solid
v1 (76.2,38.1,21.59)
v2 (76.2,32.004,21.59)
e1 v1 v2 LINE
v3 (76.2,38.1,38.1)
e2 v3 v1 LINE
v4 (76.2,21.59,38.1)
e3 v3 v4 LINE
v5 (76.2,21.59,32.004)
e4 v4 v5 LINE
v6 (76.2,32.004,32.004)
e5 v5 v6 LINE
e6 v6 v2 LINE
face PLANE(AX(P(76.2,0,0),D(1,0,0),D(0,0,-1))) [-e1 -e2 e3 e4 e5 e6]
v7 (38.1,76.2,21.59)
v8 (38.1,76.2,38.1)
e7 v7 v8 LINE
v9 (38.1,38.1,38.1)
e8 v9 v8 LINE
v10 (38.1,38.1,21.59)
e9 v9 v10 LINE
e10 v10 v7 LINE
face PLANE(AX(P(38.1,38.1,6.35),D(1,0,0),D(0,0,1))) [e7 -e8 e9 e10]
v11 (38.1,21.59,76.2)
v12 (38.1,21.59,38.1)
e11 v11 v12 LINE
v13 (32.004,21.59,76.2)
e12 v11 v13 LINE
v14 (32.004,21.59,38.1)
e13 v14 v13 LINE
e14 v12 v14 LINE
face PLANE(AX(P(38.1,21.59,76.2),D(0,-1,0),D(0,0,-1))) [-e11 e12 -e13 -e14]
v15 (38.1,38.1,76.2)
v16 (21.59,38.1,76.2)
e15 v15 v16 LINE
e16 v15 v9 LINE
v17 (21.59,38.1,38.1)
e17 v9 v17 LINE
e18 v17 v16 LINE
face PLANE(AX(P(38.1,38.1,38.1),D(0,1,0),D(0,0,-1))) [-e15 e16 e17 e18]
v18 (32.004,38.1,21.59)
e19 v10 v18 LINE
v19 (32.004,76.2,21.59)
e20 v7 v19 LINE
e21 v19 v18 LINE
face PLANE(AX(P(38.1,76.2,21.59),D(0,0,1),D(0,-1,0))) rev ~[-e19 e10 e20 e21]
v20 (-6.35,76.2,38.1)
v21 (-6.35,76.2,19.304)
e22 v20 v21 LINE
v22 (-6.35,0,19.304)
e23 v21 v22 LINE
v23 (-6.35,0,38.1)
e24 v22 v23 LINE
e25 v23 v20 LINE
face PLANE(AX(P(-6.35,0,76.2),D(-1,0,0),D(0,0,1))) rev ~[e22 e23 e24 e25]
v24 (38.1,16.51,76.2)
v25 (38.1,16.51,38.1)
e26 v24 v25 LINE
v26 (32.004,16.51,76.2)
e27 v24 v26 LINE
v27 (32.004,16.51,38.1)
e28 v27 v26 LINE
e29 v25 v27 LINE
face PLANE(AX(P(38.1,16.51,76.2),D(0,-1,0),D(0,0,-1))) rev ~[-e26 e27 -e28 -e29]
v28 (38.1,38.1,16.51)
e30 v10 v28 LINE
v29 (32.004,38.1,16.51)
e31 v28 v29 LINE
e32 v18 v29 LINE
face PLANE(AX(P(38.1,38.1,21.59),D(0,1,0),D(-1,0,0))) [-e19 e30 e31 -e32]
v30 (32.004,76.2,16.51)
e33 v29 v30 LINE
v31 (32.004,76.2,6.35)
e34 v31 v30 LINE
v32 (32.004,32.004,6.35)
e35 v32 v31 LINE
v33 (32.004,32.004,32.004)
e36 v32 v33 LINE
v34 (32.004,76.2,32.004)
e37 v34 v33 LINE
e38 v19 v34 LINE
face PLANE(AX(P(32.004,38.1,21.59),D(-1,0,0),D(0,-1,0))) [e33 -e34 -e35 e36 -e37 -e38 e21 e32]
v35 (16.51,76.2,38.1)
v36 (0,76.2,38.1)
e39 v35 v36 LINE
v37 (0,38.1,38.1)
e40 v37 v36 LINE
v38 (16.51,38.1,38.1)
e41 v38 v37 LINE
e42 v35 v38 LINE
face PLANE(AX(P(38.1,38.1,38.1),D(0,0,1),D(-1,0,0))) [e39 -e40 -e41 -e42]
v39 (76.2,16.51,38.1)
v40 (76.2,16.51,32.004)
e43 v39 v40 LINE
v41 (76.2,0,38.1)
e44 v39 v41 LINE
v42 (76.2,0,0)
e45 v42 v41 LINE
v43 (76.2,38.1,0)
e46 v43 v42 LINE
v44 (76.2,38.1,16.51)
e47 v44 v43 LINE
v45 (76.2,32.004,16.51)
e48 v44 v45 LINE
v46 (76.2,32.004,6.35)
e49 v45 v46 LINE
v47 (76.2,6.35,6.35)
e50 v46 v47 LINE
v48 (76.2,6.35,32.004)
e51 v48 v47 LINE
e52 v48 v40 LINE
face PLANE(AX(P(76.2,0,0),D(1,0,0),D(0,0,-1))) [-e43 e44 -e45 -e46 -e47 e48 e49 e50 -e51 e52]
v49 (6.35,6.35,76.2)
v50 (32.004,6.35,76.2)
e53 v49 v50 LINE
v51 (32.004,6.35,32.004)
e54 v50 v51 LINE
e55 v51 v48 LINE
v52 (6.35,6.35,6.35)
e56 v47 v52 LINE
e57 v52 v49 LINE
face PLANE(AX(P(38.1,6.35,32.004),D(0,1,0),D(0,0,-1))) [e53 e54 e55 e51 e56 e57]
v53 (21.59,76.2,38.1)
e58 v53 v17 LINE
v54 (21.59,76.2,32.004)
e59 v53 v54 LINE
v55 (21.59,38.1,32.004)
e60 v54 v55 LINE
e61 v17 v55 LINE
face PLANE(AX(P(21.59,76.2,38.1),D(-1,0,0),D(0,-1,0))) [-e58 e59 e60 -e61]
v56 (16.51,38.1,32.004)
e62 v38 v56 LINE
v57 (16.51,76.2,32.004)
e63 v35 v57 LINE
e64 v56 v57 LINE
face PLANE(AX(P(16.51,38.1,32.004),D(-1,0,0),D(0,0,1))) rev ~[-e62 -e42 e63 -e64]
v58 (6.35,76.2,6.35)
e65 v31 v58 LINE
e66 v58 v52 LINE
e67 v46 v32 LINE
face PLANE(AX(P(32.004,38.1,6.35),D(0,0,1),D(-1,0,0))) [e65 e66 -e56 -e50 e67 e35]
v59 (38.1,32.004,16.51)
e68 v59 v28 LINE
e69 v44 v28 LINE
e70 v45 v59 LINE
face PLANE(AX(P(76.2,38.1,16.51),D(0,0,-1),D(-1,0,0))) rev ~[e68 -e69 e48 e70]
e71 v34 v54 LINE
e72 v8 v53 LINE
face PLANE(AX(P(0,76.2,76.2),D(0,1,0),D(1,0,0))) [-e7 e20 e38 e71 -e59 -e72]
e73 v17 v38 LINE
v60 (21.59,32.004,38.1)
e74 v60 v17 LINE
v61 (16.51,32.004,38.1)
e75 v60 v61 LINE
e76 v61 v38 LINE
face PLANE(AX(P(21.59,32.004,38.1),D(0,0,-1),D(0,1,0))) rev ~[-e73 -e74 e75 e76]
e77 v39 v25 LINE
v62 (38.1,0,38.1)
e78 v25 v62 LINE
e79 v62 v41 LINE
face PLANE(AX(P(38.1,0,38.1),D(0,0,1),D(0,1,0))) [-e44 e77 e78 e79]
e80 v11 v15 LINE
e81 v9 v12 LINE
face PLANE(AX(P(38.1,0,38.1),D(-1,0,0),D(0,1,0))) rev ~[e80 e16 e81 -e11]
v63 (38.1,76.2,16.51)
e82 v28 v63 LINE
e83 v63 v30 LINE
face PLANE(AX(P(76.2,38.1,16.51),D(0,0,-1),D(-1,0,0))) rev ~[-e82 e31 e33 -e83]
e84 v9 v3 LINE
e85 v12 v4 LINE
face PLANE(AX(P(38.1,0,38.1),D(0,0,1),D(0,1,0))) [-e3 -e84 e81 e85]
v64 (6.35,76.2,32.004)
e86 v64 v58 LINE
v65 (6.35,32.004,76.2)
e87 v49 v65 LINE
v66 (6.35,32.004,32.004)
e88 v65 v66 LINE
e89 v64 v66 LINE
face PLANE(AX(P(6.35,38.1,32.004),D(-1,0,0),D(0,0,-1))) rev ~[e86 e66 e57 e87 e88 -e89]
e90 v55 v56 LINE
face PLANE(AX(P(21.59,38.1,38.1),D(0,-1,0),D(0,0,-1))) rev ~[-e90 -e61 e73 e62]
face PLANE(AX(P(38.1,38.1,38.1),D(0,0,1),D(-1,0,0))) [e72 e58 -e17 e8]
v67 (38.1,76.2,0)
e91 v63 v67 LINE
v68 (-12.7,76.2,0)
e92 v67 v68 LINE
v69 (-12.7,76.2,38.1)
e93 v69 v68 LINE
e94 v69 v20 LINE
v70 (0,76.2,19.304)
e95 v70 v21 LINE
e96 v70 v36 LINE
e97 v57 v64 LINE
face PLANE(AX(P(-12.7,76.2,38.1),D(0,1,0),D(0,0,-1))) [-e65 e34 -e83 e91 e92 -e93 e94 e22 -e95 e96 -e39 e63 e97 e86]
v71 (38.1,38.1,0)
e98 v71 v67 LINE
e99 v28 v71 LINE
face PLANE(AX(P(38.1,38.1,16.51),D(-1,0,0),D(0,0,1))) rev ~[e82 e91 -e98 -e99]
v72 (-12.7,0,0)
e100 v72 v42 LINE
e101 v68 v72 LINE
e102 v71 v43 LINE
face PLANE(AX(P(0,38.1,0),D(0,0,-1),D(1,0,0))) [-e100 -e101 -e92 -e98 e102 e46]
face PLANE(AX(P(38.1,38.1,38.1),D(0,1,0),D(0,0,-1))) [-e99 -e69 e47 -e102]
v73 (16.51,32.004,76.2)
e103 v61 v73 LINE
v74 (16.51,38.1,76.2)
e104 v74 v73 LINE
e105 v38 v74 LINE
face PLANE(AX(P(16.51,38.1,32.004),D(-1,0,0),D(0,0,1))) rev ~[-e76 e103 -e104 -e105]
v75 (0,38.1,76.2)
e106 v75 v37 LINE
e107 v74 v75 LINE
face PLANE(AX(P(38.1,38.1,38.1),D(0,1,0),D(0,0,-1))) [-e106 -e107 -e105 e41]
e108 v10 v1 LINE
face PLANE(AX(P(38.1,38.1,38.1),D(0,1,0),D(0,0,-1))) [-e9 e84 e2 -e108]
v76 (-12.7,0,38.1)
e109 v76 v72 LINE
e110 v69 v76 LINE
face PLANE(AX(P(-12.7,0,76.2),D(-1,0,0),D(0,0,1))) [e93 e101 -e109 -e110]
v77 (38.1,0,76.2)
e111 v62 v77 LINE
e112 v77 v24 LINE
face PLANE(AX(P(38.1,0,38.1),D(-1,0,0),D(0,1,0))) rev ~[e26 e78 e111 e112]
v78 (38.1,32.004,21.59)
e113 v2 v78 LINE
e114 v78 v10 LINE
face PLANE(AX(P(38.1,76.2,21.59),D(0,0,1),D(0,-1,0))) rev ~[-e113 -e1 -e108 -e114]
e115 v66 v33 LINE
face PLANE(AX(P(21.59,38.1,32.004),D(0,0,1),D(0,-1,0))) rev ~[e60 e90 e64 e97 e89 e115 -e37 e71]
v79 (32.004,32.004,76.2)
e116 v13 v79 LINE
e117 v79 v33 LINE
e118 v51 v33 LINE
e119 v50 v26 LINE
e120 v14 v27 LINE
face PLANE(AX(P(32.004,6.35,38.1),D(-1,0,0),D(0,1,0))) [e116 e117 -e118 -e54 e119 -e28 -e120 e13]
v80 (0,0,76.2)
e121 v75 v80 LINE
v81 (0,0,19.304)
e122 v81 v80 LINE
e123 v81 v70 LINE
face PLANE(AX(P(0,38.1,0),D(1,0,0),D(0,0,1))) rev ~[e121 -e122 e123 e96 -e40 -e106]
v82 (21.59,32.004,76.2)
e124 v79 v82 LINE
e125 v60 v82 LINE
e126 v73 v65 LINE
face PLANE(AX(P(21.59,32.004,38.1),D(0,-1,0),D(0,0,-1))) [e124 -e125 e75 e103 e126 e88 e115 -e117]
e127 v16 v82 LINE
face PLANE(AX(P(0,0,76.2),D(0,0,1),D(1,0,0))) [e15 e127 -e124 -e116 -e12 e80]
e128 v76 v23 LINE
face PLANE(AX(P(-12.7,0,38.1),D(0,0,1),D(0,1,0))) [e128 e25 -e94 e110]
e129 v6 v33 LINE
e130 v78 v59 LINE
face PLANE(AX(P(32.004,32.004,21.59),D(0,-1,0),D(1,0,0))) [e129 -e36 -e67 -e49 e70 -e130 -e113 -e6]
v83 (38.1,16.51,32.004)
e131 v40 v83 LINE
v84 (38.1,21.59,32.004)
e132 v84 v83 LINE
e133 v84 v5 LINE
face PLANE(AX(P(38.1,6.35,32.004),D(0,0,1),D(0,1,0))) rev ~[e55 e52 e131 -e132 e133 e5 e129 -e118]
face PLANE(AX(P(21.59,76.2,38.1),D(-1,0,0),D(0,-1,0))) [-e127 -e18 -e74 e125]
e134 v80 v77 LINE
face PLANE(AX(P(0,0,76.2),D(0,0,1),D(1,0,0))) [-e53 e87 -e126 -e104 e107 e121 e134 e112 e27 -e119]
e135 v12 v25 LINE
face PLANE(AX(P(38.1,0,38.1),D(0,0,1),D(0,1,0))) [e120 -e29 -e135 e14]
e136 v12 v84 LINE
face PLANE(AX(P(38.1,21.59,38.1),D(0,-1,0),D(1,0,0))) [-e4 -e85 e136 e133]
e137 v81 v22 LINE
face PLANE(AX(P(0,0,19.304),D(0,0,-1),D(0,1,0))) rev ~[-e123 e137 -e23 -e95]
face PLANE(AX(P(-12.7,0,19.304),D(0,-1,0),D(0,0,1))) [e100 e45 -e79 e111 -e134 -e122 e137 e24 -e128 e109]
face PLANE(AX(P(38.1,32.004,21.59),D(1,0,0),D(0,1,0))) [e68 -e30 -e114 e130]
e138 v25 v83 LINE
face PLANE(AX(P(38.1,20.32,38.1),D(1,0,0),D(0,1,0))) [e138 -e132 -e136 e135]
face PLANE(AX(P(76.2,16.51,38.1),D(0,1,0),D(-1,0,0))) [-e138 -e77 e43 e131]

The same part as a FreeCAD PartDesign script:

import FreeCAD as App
import Part
import Sketcher
Q = App.Units.Quantity


def add_polygon(sketch, points):
    """Adds a closed chain of lines whose ends are joined by coincident constraints."""
    first, n = sketch.GeometryCount, len(points)
    for a, b in zip(points, points[1:] + points[:1]):
        sketch.addGeometry(Part.LineSegment(App.Vector(*a, 0), App.Vector(*b, 0)), False)
    for i in range(n):
        sketch.addConstraint(Sketcher.Constraint("Coincident", first + i, 2, first + (i + 1) % n, 1))

doc = App.newDocument("Part")
body = doc.addObject("PartDesign::Body", "Body")

sketch1 = doc.addObject("Sketcher::SketchObject", "Sketch")
body.addObject(sketch1)
sketch1.AttachmentSupport = (doc.XY_Plane, [""])
sketch1.MapMode = "FlatFace"
add_polygon(sketch1, [(0, 38), (0, 0), (38, 0), (38, 38)])
sketch1.addConstraint(Sketcher.Constraint("Vertical", 0))
sketch1.addConstraint(Sketcher.Constraint("Horizontal", 1))
sketch1.addConstraint(Sketcher.Constraint("Vertical", 2))
sketch1.addConstraint(Sketcher.Constraint("Horizontal", 3))
sketch1.addConstraint(Sketcher.Constraint("Coincident", 0, 2, -1, 1))
sketch1.addConstraint(Sketcher.Constraint("Equal", 3, 0))
sketch1.addConstraint(Sketcher.Constraint("DistanceX", 1, 1, 1, 2, Q("1.5 in")))
pad1 = doc.addObject("PartDesign::Pad", "Pad")
body.addObject(pad1)
pad1.Profile = sketch1
pad1.Length = Q("1.5 in")

sketch2 = doc.addObject("Sketcher::SketchObject", "Sketch001")
body.addObject(sketch2)
sketch2.AttachmentSupport = (doc.XY_Plane, [""])
sketch2.MapMode = "FlatFace"
sketch2.AttachmentOffset = App.Placement(App.Vector(0, 0, 1.5 * 25.4), App.Rotation())
add_polygon(sketch2, [(6, 32), (6, 6), (32, 6), (32, 32)])
sketch2.addConstraint(Sketcher.Constraint("Vertical", 0))
sketch2.addConstraint(Sketcher.Constraint("Horizontal", 1))
sketch2.addConstraint(Sketcher.Constraint("Vertical", 2))
sketch2.addConstraint(Sketcher.Constraint("Horizontal", 3))
sketch2.addConstraint(Sketcher.Constraint("Equal", 3, 0))
sketch2.addConstraint(Sketcher.Constraint("DistanceX", 1, 1, 1, 2, Q("1.01 in")))
sketch2.addConstraint(Sketcher.Constraint("DistanceX", -1, 1, 0, 2, Q("0.25 in")))
sketch2.addConstraint(Sketcher.Constraint("DistanceY", -1, 1, 0, 2, Q("0.25 in")))
pocket1 = doc.addObject("PartDesign::Pocket", "Pocket")
body.addObject(pocket1)
pocket1.Profile = sketch2
pocket1.Length = Q("1.25 in")

sketch3 = doc.addObject("Sketcher::SketchObject", "Sketch002")
body.addObject(sketch3)
sketch3.AttachmentSupport = (doc.XY_Plane, [""])
sketch3.MapMode = "FlatFace"
sketch3.AttachmentOffset = App.Placement(App.Vector(0, 0, 1.5 * 25.4), App.Rotation())
add_polygon(sketch3, [(0, 38), (0, 0), (38, 0), (38, 38)])
add_polygon(sketch3, [(32, 6), (6, 6), (6, 32), (32, 32)])
sketch3.addConstraint(Sketcher.Constraint("Vertical", 0))
sketch3.addConstraint(Sketcher.Constraint("Horizontal", 1))
sketch3.addConstraint(Sketcher.Constraint("Vertical", 2))
sketch3.addConstraint(Sketcher.Constraint("Horizontal", 3))
sketch3.addConstraint(Sketcher.Constraint("Horizontal", 4))
sketch3.addConstraint(Sketcher.Constraint("Vertical", 5))
sketch3.addConstraint(Sketcher.Constraint("Horizontal", 6))
sketch3.addConstraint(Sketcher.Constraint("Vertical", 7))
sketch3.addConstraint(Sketcher.Constraint("Coincident", 0, 2, -1, 1))
sketch3.addConstraint(Sketcher.Constraint("Equal", 3, 0))
sketch3.addConstraint(Sketcher.Constraint("Equal", 6, 5))
sketch3.addConstraint(Sketcher.Constraint("DistanceX", 1, 1, 1, 2, Q("1.5 in")))
sketch3.addConstraint(Sketcher.Constraint("DistanceX", 4, 2, 4, 1, Q("1.01 in")))
sketch3.addConstraint(Sketcher.Constraint("DistanceX", -1, 1, 4, 2, Q("0.25 in")))
sketch3.addConstraint(Sketcher.Constraint("DistanceY", -1, 1, 4, 2, Q("0.25 in")))
pad2 = doc.addObject("PartDesign::Pad", "Pad001")
body.addObject(pad2)
pad2.Profile = sketch3
pad2.Length = Q("1.5 in")

sketch4 = doc.addObject("Sketcher::SketchObject", "Sketch003")
body.addObject(sketch4)
sketch4.AttachmentSupport = (doc.YZ_Plane, [""])
sketch4.MapMode = "FlatFace"
sketch4.AttachmentOffset = App.Placement(App.Vector(0, 0, 1.5 * 25.4), App.Rotation())
add_polygon(sketch4, [(0, 38), (0, 0), (38, 0), (38, 38), (6, 38)])
add_polygon(sketch4, [(6, 6), (6, 32), (32, 32), (32, 6)])
sketch4.addConstraint(Sketcher.Constraint("Vertical", 0))
sketch4.addConstraint(Sketcher.Constraint("Horizontal", 1))
sketch4.addConstraint(Sketcher.Constraint("Vertical", 2))
sketch4.addConstraint(Sketcher.Constraint("Horizontal", 3))
sketch4.addConstraint(Sketcher.Constraint("Horizontal", 4))
sketch4.addConstraint(Sketcher.Constraint("Vertical", 5))
sketch4.addConstraint(Sketcher.Constraint("Horizontal", 6))
sketch4.addConstraint(Sketcher.Constraint("Vertical", 7))
sketch4.addConstraint(Sketcher.Constraint("Horizontal", 8))
sketch4.addConstraint(Sketcher.Constraint("Coincident", 0, 2, -1, 1))
sketch4.addConstraint(Sketcher.Constraint("Vertical", 3, 2, 5, 2))
sketch4.addConstraint(Sketcher.Constraint("Equal", 1, 0))
sketch4.addConstraint(Sketcher.Constraint("Equal", 8, 5))
sketch4.addConstraint(Sketcher.Constraint("DistanceX", 1, 1, 1, 2, Q("1.5 in")))
sketch4.addConstraint(Sketcher.Constraint("DistanceX", 6, 1, 6, 2, Q("1.01 in")))
sketch4.addConstraint(Sketcher.Constraint("DistanceX", 3, 2, 3, 1, Q("1.25 in")))
sketch4.addConstraint(Sketcher.Constraint("DistanceY", -1, 1, 5, 2, Q("1.26 in")))
pad3 = doc.addObject("PartDesign::Pad", "Pad002")
body.addObject(pad3)
pad3.Profile = sketch4
pad3.Length = Q("1.5 in")

sketch5 = doc.addObject("Sketcher::SketchObject", "Sketch004")
body.addObject(sketch5)
sketch5.AttachmentSupport = (doc.YZ_Plane, [""])
sketch5.MapMode = "FlatFace"
sketch5.AttachmentOffset = App.Placement(App.Vector(0, 0, 1.5 * 25.4), App.Rotation())
add_polygon(sketch5, [(32, 32), (6, 32), (6, 6), (32, 6)])
sketch5.addConstraint(Sketcher.Constraint("Horizontal", 0))
sketch5.addConstraint(Sketcher.Constraint("Vertical", 1))
sketch5.addConstraint(Sketcher.Constraint("Horizontal", 2))
sketch5.addConstraint(Sketcher.Constraint("Vertical", 3))
sketch5.addConstraint(Sketcher.Constraint("Equal", 2, 1))
sketch5.addConstraint(Sketcher.Constraint("DistanceX", 0, 2, 0, 1, Q("1.01 in")))
sketch5.addConstraint(Sketcher.Constraint("DistanceX", -1, 1, 0, 2, Q("0.25 in")))
sketch5.addConstraint(Sketcher.Constraint("DistanceY", -1, 1, 0, 2, Q("1.26 in")))
pocket2 = doc.addObject("PartDesign::Pocket", "Pocket001")
body.addObject(pocket2)
pocket2.Profile = sketch5
pocket2.Length = Q("1.25 in")

sketch6 = doc.addObject("Sketcher::SketchObject", "Sketch005")
body.addObject(sketch6)
sketch6.AttachmentSupport = (doc.XZ_Plane, [""])
sketch6.MapMode = "FlatFace"
sketch6.AttachmentOffset = App.Placement(App.Vector(0, 0, -1.5 * 25.4), App.Rotation())
add_polygon(sketch6, [(38, 38), (38, 6), (38, 0), (0, 0), (0, 38)])
add_polygon(sketch6, [(6, 6), (32, 6), (32, 32), (6, 32)])
sketch6.addConstraint(Sketcher.Constraint("Vertical", 0))
sketch6.addConstraint(Sketcher.Constraint("Vertical", 1))
sketch6.addConstraint(Sketcher.Constraint("Horizontal", 2))
sketch6.addConstraint(Sketcher.Constraint("Vertical", 3))
sketch6.addConstraint(Sketcher.Constraint("Horizontal", 4))
sketch6.addConstraint(Sketcher.Constraint("Horizontal", 5))
sketch6.addConstraint(Sketcher.Constraint("Vertical", 6))
sketch6.addConstraint(Sketcher.Constraint("Horizontal", 7))
sketch6.addConstraint(Sketcher.Constraint("Vertical", 8))
sketch6.addConstraint(Sketcher.Constraint("Coincident", 2, 2, -1, 1))
sketch6.addConstraint(Sketcher.Constraint("Horizontal", 0, 2, 5, 2))
sketch6.addConstraint(Sketcher.Constraint("Equal", 4, 3))
sketch6.addConstraint(Sketcher.Constraint("Equal", 7, 6))
sketch6.addConstraint(Sketcher.Constraint("DistanceX", 5, 1, 5, 2, Q("1.01 in")))
sketch6.addConstraint(Sketcher.Constraint("DistanceX", 2, 2, 2, 1, Q("1.5 in")))
sketch6.addConstraint(Sketcher.Constraint("DistanceY", 0, 2, 0, 1, Q("1.25 in")))
sketch6.addConstraint(Sketcher.Constraint("DistanceX", -1, 1, 5, 2, Q("1.26 in")))
pad4 = doc.addObject("PartDesign::Pad", "Pad003")
body.addObject(pad4)
pad4.Profile = sketch6
pad4.Length = Q("1.5 in")
pad4.Reversed = True

sketch7 = doc.addObject("Sketcher::SketchObject", "Sketch006")
body.addObject(sketch7)
sketch7.AttachmentSupport = (doc.XZ_Plane, [""])
sketch7.MapMode = "FlatFace"
sketch7.AttachmentOffset = App.Placement(App.Vector(0, 0, -1.5 * 25.4), App.Rotation())
add_polygon(sketch7, [(6, 6), (6, 32), (32, 32), (32, 6)])
sketch7.addConstraint(Sketcher.Constraint("Vertical", 0))
sketch7.addConstraint(Sketcher.Constraint("Horizontal", 1))
sketch7.addConstraint(Sketcher.Constraint("Vertical", 2))
sketch7.addConstraint(Sketcher.Constraint("Horizontal", 3))
sketch7.addConstraint(Sketcher.Constraint("Equal", 3, 0))
sketch7.addConstraint(Sketcher.Constraint("DistanceX", 1, 1, 1, 2, Q("1.01 in")))
sketch7.addConstraint(Sketcher.Constraint("DistanceX", -1, 1, 0, 2, Q("0.25 in")))
sketch7.addConstraint(Sketcher.Constraint("DistanceY", -1, 1, 0, 2, Q("1.26 in")))
pocket3 = doc.addObject("PartDesign::Pocket", "Pocket002")
body.addObject(pocket3)
pocket3.Profile = sketch7
pocket3.Length = Q("0.25 in")
pocket3.Reversed = True

sketch8 = doc.addObject("Sketcher::SketchObject", "Sketch007")
body.addObject(sketch8)
sketch8.AttachmentSupport = (doc.XZ_Plane, [""])
sketch8.MapMode = "FlatFace"
sketch8.AttachmentOffset = App.Placement(App.Vector(0, 0, -3 * 25.4), App.Rotation())
add_polygon(sketch8, [(32, 20.3), (38.1, 20.3), (38.1, 17.8), (32, 17.8)])
sketch8.addConstraint(Sketcher.Constraint("Horizontal", 0))
sketch8.addConstraint(Sketcher.Constraint("Vertical", 1))
sketch8.addConstraint(Sketcher.Constraint("Horizontal", 2))
sketch8.addConstraint(Sketcher.Constraint("Vertical", 3))
sketch8.addConstraint(Sketcher.Constraint("DistanceY", 1, 2, 1, 1, Q("0.1 in")))
sketch8.addConstraint(Sketcher.Constraint("DistanceX", 0, 1, 0, 2, Q("0.24 in")))
sketch8.addConstraint(Sketcher.Constraint("DistanceX", -1, 1, 0, 2, Q("1.5 in")))
sketch8.addConstraint(Sketcher.Constraint("DistanceY", -1, 1, 0, 2, Q("0.8 in")))
pocket4 = doc.addObject("PartDesign::Pocket", "Pocket003")
body.addObject(pocket4)
pocket4.Profile = sketch8
pocket4.Length = Q("1.5 in")
pocket4.Reversed = True

sketch9 = doc.addObject("Sketcher::SketchObject", "Sketch008")
body.addObject(sketch9)
sketch9.AttachmentSupport = (doc.XZ_Plane, [""])
sketch9.MapMode = "FlatFace"
sketch9.AttachmentOffset = App.Placement(App.Vector(0, 0, -1.5 * 25.4), App.Rotation())
add_polygon(sketch9, [(76.2, 20.3), (76.2, 17.8), (32, 17.8), (32, 20.3)])
sketch9.addConstraint(Sketcher.Constraint("Vertical", 0))
sketch9.addConstraint(Sketcher.Constraint("Horizontal", 1))
sketch9.addConstraint(Sketcher.Constraint("Vertical", 2))
sketch9.addConstraint(Sketcher.Constraint("Horizontal", 3))
sketch9.addConstraint(Sketcher.Constraint("DistanceY", 0, 2, 0, 1, Q("0.1 in")))
sketch9.addConstraint(Sketcher.Constraint("DistanceX", -1, 1, 0, 2, Q("3 in")))
sketch9.addConstraint(Sketcher.Constraint("DistanceX", 1, 2, 1, 1, Q("1.74 in")))
sketch9.addConstraint(Sketcher.Constraint("DistanceY", -1, 1, 0, 2, Q("0.7 in")))
pocket5 = doc.addObject("PartDesign::Pocket", "Pocket004")
body.addObject(pocket5)
pocket5.Profile = sketch9
pocket5.Length = Q("0.25 in")
pocket5.Reversed = True

sketch10 = doc.addObject("Sketcher::SketchObject", "Sketch009")
body.addObject(sketch10)
sketch10.AttachmentSupport = (doc.XZ_Plane, [""])
sketch10.MapMode = "FlatFace"
sketch10.AttachmentOffset = App.Placement(App.Vector(0, 0, -3 * 25.4), App.Rotation())
add_polygon(sketch10, [(17.8, 32), (17.8, 38.1), (20.3, 38.1), (20.3, 32)])
sketch10.addConstraint(Sketcher.Constraint("Vertical", 0))
sketch10.addConstraint(Sketcher.Constraint("Horizontal", 1))
sketch10.addConstraint(Sketcher.Constraint("Vertical", 2))
sketch10.addConstraint(Sketcher.Constraint("Horizontal", 3))
sketch10.addConstraint(Sketcher.Constraint("DistanceX", 1, 1, 1, 2, Q("0.1 in")))
sketch10.addConstraint(Sketcher.Constraint("DistanceY", 0, 1, 0, 2, Q("0.24 in")))
sketch10.addConstraint(Sketcher.Constraint("DistanceX", -1, 1, 0, 2, Q("0.7 in")))
sketch10.addConstraint(Sketcher.Constraint("DistanceY", -1, 1, 0, 2, Q("1.5 in")))
pocket6 = doc.addObject("PartDesign::Pocket", "Pocket005")
body.addObject(pocket6)
pocket6.Profile = sketch10
pocket6.Length = Q("1.5 in")
pocket6.Reversed = True

sketch11 = doc.addObject("Sketcher::SketchObject", "Sketch010")
body.addObject(sketch11)
sketch11.AttachmentSupport = (doc.XZ_Plane, [""])
sketch11.MapMode = "FlatFace"
sketch11.AttachmentOffset = App.Placement(App.Vector(0, 0, -1.5 * 25.4), App.Rotation())
add_polygon(sketch11, [(20.3, 76.2), (20.3, 32), (17.8, 32), (17.8, 76.2)])
sketch11.addConstraint(Sketcher.Constraint("Vertical", 0))
sketch11.addConstraint(Sketcher.Constraint("Horizontal", 1))
sketch11.addConstraint(Sketcher.Constraint("Vertical", 2))
sketch11.addConstraint(Sketcher.Constraint("Horizontal", 3))
sketch11.addConstraint(Sketcher.Constraint("DistanceX", 1, 2, 1, 1, Q("0.1 in")))
sketch11.addConstraint(Sketcher.Constraint("DistanceY", -1, 1, 2, 2, Q("3 in")))
sketch11.addConstraint(Sketcher.Constraint("DistanceY", 0, 2, 0, 1, Q("1.74 in")))
sketch11.addConstraint(Sketcher.Constraint("DistanceX", -1, 1, 0, 2, Q("0.8 in")))
pocket7 = doc.addObject("PartDesign::Pocket", "Pocket006")
body.addObject(pocket7)
pocket7.Profile = sketch11
pocket7.Length = Q("0.25 in")
pocket7.Reversed = True

sketch12 = doc.addObject("Sketcher::SketchObject", "Sketch011")
body.addObject(sketch12)
sketch12.AttachmentSupport = (doc.YZ_Plane, [""])
sketch12.MapMode = "FlatFace"
sketch12.AttachmentOffset = App.Placement(App.Vector(0, 0, 1.5 * 25.4), App.Rotation())
add_polygon(sketch12, [(17.8, 76.2), (17.8, 38.1), (20.3, 38.1), (20.3, 76.2)])
sketch12.addConstraint(Sketcher.Constraint("Vertical", 0))
sketch12.addConstraint(Sketcher.Constraint("Horizontal", 1))
sketch12.addConstraint(Sketcher.Constraint("Vertical", 2))
sketch12.addConstraint(Sketcher.Constraint("Horizontal", 3))
sketch12.addConstraint(Sketcher.Constraint("DistanceX", 1, 1, 1, 2, Q("0.1 in")))
sketch12.addConstraint(Sketcher.Constraint("DistanceY", 0, 2, 0, 1, Q("1.5 in")))
sketch12.addConstraint(Sketcher.Constraint("DistanceY", -1, 1, 2, 2, Q("3 in")))
sketch12.addConstraint(Sketcher.Constraint("DistanceX", -1, 1, 0, 2, Q("0.7 in")))
pocket8 = doc.addObject("PartDesign::Pocket", "Pocket007")
body.addObject(pocket8)
pocket8.Profile = sketch12
pocket8.Length = Q("0.25 in")

sketch13 = doc.addObject("Sketcher::SketchObject", "Sketch012")
body.addObject(sketch13)
sketch13.AttachmentSupport = (doc.XY_Plane, [""])
sketch13.MapMode = "FlatFace"
sketch13.AttachmentOffset = App.Placement(App.Vector(0, 0, 1.5 * 25.4), App.Rotation())
add_polygon(sketch13, [(38.1, 20.3), (38.1, 17.8), (76.2, 17.8), (76.2, 20.3)])
sketch13.addConstraint(Sketcher.Constraint("Vertical", 0))
sketch13.addConstraint(Sketcher.Constraint("Horizontal", 1))
sketch13.addConstraint(Sketcher.Constraint("Vertical", 2))
sketch13.addConstraint(Sketcher.Constraint("Horizontal", 3))
sketch13.addConstraint(Sketcher.Constraint("DistanceX", 1, 1, 1, 2, Q("1.5 in")))
sketch13.addConstraint(Sketcher.Constraint("DistanceY", 0, 2, 0, 1, Q("0.1 in")))
sketch13.addConstraint(Sketcher.Constraint("DistanceX", -1, 1, 0, 2, Q("1.5 in")))
sketch13.addConstraint(Sketcher.Constraint("DistanceY", -1, 1, 0, 2, Q("0.7 in")))
pocket9 = doc.addObject("PartDesign::Pocket", "Pocket008")
body.addObject(pocket9)
pocket9.Profile = sketch13
pocket9.Length = Q("0.25 in")

sketch14 = doc.addObject("Sketcher::SketchObject", "Sketch013")
body.addObject(sketch14)
sketch14.AttachmentSupport = (doc.XY_Plane, [""])
sketch14.MapMode = "FlatFace"
sketch14.AttachmentOffset = App.Placement(App.Vector(0, 0, 1.5 * 25.4), App.Rotation())
add_polygon(sketch14, [(20.3, 76.2), (20.3, 38.1), (21.6, 38.1), (21.6, 76.2)])
sketch14.addConstraint(Sketcher.Constraint("Vertical", 0))
sketch14.addConstraint(Sketcher.Constraint("Horizontal", 1))
sketch14.addConstraint(Sketcher.Constraint("Vertical", 2))
sketch14.addConstraint(Sketcher.Constraint("Horizontal", 3))
sketch14.addConstraint(Sketcher.Constraint("DistanceX", 1, 1, 1, 2, Q("0.05 in")))
sketch14.addConstraint(Sketcher.Constraint("DistanceY", 0, 2, 0, 1, Q("1.5 in")))
sketch14.addConstraint(Sketcher.Constraint("DistanceY", -1, 1, 2, 2, Q("3 in")))
sketch14.addConstraint(Sketcher.Constraint("DistanceX", -1, 1, 0, 2, Q("0.8 in")))
pocket10 = doc.addObject("PartDesign::Pocket", "Pocket009")
body.addObject(pocket10)
pocket10.Profile = sketch14
pocket10.Length = Q("0.25 in")

sketch15 = doc.addObject("Sketcher::SketchObject", "Sketch014")
body.addObject(sketch15)
sketch15.AttachmentSupport = (doc.XZ_Plane, [""])
sketch15.MapMode = "FlatFace"
sketch15.AttachmentOffset = App.Placement(App.Vector(0, 0, -1.5 * 25.4), App.Rotation())
add_polygon(sketch15, [(20.3, 32), (20.3, 76.2), (21.6, 76.2), (21.6, 32)])
sketch15.addConstraint(Sketcher.Constraint("Vertical", 0))
sketch15.addConstraint(Sketcher.Constraint("Horizontal", 1))
sketch15.addConstraint(Sketcher.Constraint("Vertical", 2))
sketch15.addConstraint(Sketcher.Constraint("Horizontal", 3))
sketch15.addConstraint(Sketcher.Constraint("DistanceX", 1, 1, 1, 2, Q("0.05 in")))
sketch15.addConstraint(Sketcher.Constraint("DistanceY", -1, 1, 0, 2, Q("3 in")))
sketch15.addConstraint(Sketcher.Constraint("DistanceY", 0, 1, 0, 2, Q("1.74 in")))
sketch15.addConstraint(Sketcher.Constraint("DistanceX", -1, 1, 0, 2, Q("0.8 in")))
pocket11 = doc.addObject("PartDesign::Pocket", "Pocket010")
body.addObject(pocket11)
pocket11.Profile = sketch15
pocket11.Length = Q("0.25 in")
pocket11.Reversed = True

sketch16 = doc.addObject("Sketcher::SketchObject", "Sketch015")
body.addObject(sketch16)
sketch16.AttachmentSupport = (doc.XY_Plane, [""])
sketch16.MapMode = "FlatFace"
sketch16.AttachmentOffset = App.Placement(App.Vector(0, 0, 1.5 * 25.4), App.Rotation())
add_polygon(sketch16, [(16.5, 38.1), (17.8, 38.1), (17.8, 76.2), (16.5, 76.2)])
sketch16.addConstraint(Sketcher.Constraint("Horizontal", 0))
sketch16.addConstraint(Sketcher.Constraint("Vertical", 1))
sketch16.addConstraint(Sketcher.Constraint("Horizontal", 2))
sketch16.addConstraint(Sketcher.Constraint("Vertical", 3))
sketch16.addConstraint(Sketcher.Constraint("DistanceX", 0, 1, 0, 2, Q("0.05 in")))
sketch16.addConstraint(Sketcher.Constraint("DistanceY", 1, 1, 1, 2, Q("1.5 in")))
sketch16.addConstraint(Sketcher.Constraint("DistanceY", -1, 1, 1, 2, Q("3 in")))
sketch16.addConstraint(Sketcher.Constraint("DistanceX", -1, 1, 0, 2, Q("0.7 in")))
pocket12 = doc.addObject("PartDesign::Pocket", "Pocket011")
body.addObject(pocket12)
pocket12.Profile = sketch16
pocket12.Length = Q("0.25 in")

sketch17 = doc.addObject("Sketcher::SketchObject", "Sketch016")
body.addObject(sketch17)
sketch17.AttachmentSupport = (doc.XZ_Plane, [""])
sketch17.MapMode = "FlatFace"
sketch17.AttachmentOffset = App.Placement(App.Vector(0, 0, -1.5 * 25.4), App.Rotation())
add_polygon(sketch17, [(17.8, 76.2), (17.8, 32), (16.5, 32), (16.5, 76.2)])
sketch17.addConstraint(Sketcher.Constraint("Vertical", 0))
sketch17.addConstraint(Sketcher.Constraint("Horizontal", 1))
sketch17.addConstraint(Sketcher.Constraint("Vertical", 2))
sketch17.addConstraint(Sketcher.Constraint("Horizontal", 3))
sketch17.addConstraint(Sketcher.Constraint("DistanceX", 1, 2, 1, 1, Q("0.05 in")))
sketch17.addConstraint(Sketcher.Constraint("DistanceY", -1, 1, 2, 2, Q("3 in")))
sketch17.addConstraint(Sketcher.Constraint("DistanceY", 0, 2, 0, 1, Q("1.74 in")))
sketch17.addConstraint(Sketcher.Constraint("DistanceX", -1, 1, 0, 2, Q("0.7 in")))
pocket13 = doc.addObject("PartDesign::Pocket", "Pocket012")
body.addObject(pocket13)
pocket13.Profile = sketch17
pocket13.Length = Q("0.25 in")
pocket13.Reversed = True

sketch18 = doc.addObject("Sketcher::SketchObject", "Sketch017")
body.addObject(sketch18)
sketch18.AttachmentSupport = (doc.YZ_Plane, [""])
sketch18.MapMode = "FlatFace"
sketch18.AttachmentOffset = App.Placement(App.Vector(0, 0, 1.5 * 25.4), App.Rotation())
add_polygon(sketch18, [(16.5, 76.2), (16.5, 38.1), (17.8, 38.1), (17.8, 76.2)])
sketch18.addConstraint(Sketcher.Constraint("Vertical", 0))
sketch18.addConstraint(Sketcher.Constraint("Horizontal", 1))
sketch18.addConstraint(Sketcher.Constraint("Vertical", 2))
sketch18.addConstraint(Sketcher.Constraint("Horizontal", 3))
sketch18.addConstraint(Sketcher.Constraint("DistanceY", 0, 2, 0, 1, Q("1.5 in")))
sketch18.addConstraint(Sketcher.Constraint("DistanceX", 1, 1, 1, 2, Q("0.05 in")))
sketch18.addConstraint(Sketcher.Constraint("DistanceY", -1, 1, 0, 2, Q("1.5 in")))
sketch18.addConstraint(Sketcher.Constraint("DistanceX", -1, 1, 1, 2, Q("0.7 in")))
pocket14 = doc.addObject("PartDesign::Pocket", "Pocket013")
body.addObject(pocket14)
pocket14.Profile = sketch18
pocket14.Length = Q("0.25 in")

sketch19 = doc.addObject("Sketcher::SketchObject", "Sketch018")
body.addObject(sketch19)
sketch19.AttachmentSupport = (doc.YZ_Plane, [""])
sketch19.MapMode = "FlatFace"
sketch19.AttachmentOffset = App.Placement(App.Vector(0, 0, 1.5 * 25.4), App.Rotation())
add_polygon(sketch19, [(21.6, 76.2), (20.3, 76.2), (20.3, 38.1), (21.6, 38.1)])
sketch19.addConstraint(Sketcher.Constraint("Horizontal", 0))
sketch19.addConstraint(Sketcher.Constraint("Vertical", 1))
sketch19.addConstraint(Sketcher.Constraint("Horizontal", 2))
sketch19.addConstraint(Sketcher.Constraint("Vertical", 3))
sketch19.addConstraint(Sketcher.Constraint("DistanceY", 1, 2, 1, 1, Q("1.5 in")))
sketch19.addConstraint(Sketcher.Constraint("DistanceX", 0, 2, 0, 1, Q("0.05 in")))
sketch19.addConstraint(Sketcher.Constraint("DistanceY", -1, 1, 1, 2, Q("1.5 in")))
sketch19.addConstraint(Sketcher.Constraint("DistanceX", -1, 1, 0, 2, Q("0.8 in")))
pocket15 = doc.addObject("PartDesign::Pocket", "Pocket014")
body.addObject(pocket15)
pocket15.Profile = sketch19
pocket15.Length = Q("0.25 in")

sketch20 = doc.addObject("Sketcher::SketchObject", "Sketch019")
body.addObject(sketch20)
sketch20.AttachmentSupport = (doc.XY_Plane, [""])
sketch20.MapMode = "FlatFace"
sketch20.AttachmentOffset = App.Placement(App.Vector(0, 0, 1.5 * 25.4), App.Rotation())
add_polygon(sketch20, [(38.1, 21.6), (38.1, 20.3), (76.2, 20.3), (76.2, 21.6)])
add_polygon(sketch20, [(76.2, 16.5), (76.2, 17.8), (38.1, 17.8), (38.1, 16.5)])
sketch20.addConstraint(Sketcher.Constraint("Vertical", 0))
sketch20.addConstraint(Sketcher.Constraint("Horizontal", 1))
sketch20.addConstraint(Sketcher.Constraint("Vertical", 2))
sketch20.addConstraint(Sketcher.Constraint("Horizontal", 3))
sketch20.addConstraint(Sketcher.Constraint("Vertical", 4))
sketch20.addConstraint(Sketcher.Constraint("Horizontal", 5))
sketch20.addConstraint(Sketcher.Constraint("Vertical", 6))
sketch20.addConstraint(Sketcher.Constraint("Horizontal", 7))
sketch20.addConstraint(Sketcher.Constraint("Vertical", 2, 2, 4, 2))
sketch20.addConstraint(Sketcher.Constraint("Vertical", 3, 2, 5, 2))
sketch20.addConstraint(Sketcher.Constraint("Equal", 2, 4))
sketch20.addConstraint(Sketcher.Constraint("DistanceX", 1, 1, 1, 2, Q("1.5 in")))
sketch20.addConstraint(Sketcher.Constraint("DistanceY", 0, 2, 0, 1, Q("0.05 in")))
sketch20.addConstraint(Sketcher.Constraint("DistanceX", -1, 1, 0, 2, Q("1.5 in")))
sketch20.addConstraint(Sketcher.Constraint("DistanceY", -1, 1, 0, 2, Q("0.8 in")))
sketch20.addConstraint(Sketcher.Constraint("DistanceY", -1, 1, 4, 2, Q("0.7 in")))
pocket16 = doc.addObject("PartDesign::Pocket", "Pocket015")
body.addObject(pocket16)
pocket16.Profile = sketch20
pocket16.Length = Q("0.25 in")

sketch21 = doc.addObject("Sketcher::SketchObject", "Sketch020")
body.addObject(sketch21)
sketch21.AttachmentSupport = (doc.XZ_Plane, [""])
sketch21.MapMode = "FlatFace"
sketch21.AttachmentOffset = App.Placement(App.Vector(0, 0, -1.5 * 25.4), App.Rotation())
add_polygon(sketch21, [(38.1, 16.5), (38.1, 17.8), (76.2, 17.8), (76.2, 16.5)])
add_polygon(sketch21, [(76.2, 20.3), (38.1, 20.3), (38.1, 21.6), (76.2, 21.6)])
sketch21.addConstraint(Sketcher.Constraint("Vertical", 0))
sketch21.addConstraint(Sketcher.Constraint("Horizontal", 1))
sketch21.addConstraint(Sketcher.Constraint("Vertical", 2))
sketch21.addConstraint(Sketcher.Constraint("Horizontal", 3))
sketch21.addConstraint(Sketcher.Constraint("Horizontal", 4))
sketch21.addConstraint(Sketcher.Constraint("Vertical", 5))
sketch21.addConstraint(Sketcher.Constraint("Horizontal", 6))
sketch21.addConstraint(Sketcher.Constraint("Vertical", 7))
sketch21.addConstraint(Sketcher.Constraint("Vertical", 3, 2, 4, 2))
sketch21.addConstraint(Sketcher.Constraint("Vertical", 2, 2, 6, 2))
sketch21.addConstraint(Sketcher.Constraint("Equal", 2, 5))
sketch21.addConstraint(Sketcher.Constraint("DistanceX", 1, 1, 1, 2, Q("1.5 in")))
sketch21.addConstraint(Sketcher.Constraint("DistanceY", 0, 1, 0, 2, Q("0.05 in")))
sketch21.addConstraint(Sketcher.Constraint("DistanceX", -1, 1, 0, 2, Q("1.5 in")))
sketch21.addConstraint(Sketcher.Constraint("DistanceY", -1, 1, 0, 2, Q("0.7 in")))
sketch21.addConstraint(Sketcher.Constraint("DistanceY", -1, 1, 4, 2, Q("0.8 in")))
pocket17 = doc.addObject("PartDesign::Pocket", "Pocket016")
body.addObject(pocket17)
pocket17.Profile = sketch21
pocket17.Length = Q("0.25 in")
pocket17.Reversed = True

sketch22 = doc.addObject("Sketcher::SketchObject", "Sketch021")
body.addObject(sketch22)
sketch22.AttachmentSupport = (doc.YZ_Plane, [""])
sketch22.MapMode = "FlatFace"
sketch22.AttachmentOffset = App.Placement(App.Vector(0, 0, 1.5 * 25.4), App.Rotation())
add_polygon(sketch22, [(76.2, 17.8), (32, 17.8), (32, 16.5), (76.2, 16.5)])
add_polygon(sketch22, [(76.2, 21.6), (32, 21.6), (32, 20.3), (76.2, 20.3)])
sketch22.addConstraint(Sketcher.Constraint("Horizontal", 0))
sketch22.addConstraint(Sketcher.Constraint("Vertical", 1))
sketch22.addConstraint(Sketcher.Constraint("Horizontal", 2))
sketch22.addConstraint(Sketcher.Constraint("Vertical", 3))
sketch22.addConstraint(Sketcher.Constraint("Horizontal", 4))
sketch22.addConstraint(Sketcher.Constraint("Vertical", 5))
sketch22.addConstraint(Sketcher.Constraint("Horizontal", 6))
sketch22.addConstraint(Sketcher.Constraint("Vertical", 7))
sketch22.addConstraint(Sketcher.Constraint("Vertical", 1, 2, 4, 2))
sketch22.addConstraint(Sketcher.Constraint("Vertical", 3, 2, 6, 2))
sketch22.addConstraint(Sketcher.Constraint("Equal", 3, 5))
sketch22.addConstraint(Sketcher.Constraint("DistanceY", 1, 2, 1, 1, Q("0.05 in")))
sketch22.addConstraint(Sketcher.Constraint("DistanceX", -1, 1, 2, 2, Q("3 in")))
sketch22.addConstraint(Sketcher.Constraint("DistanceX", 0, 2, 0, 1, Q("1.74 in")))
sketch22.addConstraint(Sketcher.Constraint("DistanceY", -1, 1, 0, 2, Q("0.7 in")))
sketch22.addConstraint(Sketcher.Constraint("DistanceY", -1, 1, 5, 2, Q("0.8 in")))
pocket18 = doc.addObject("PartDesign::Pocket", "Pocket017")
body.addObject(pocket18)
pocket18.Profile = sketch22
pocket18.Length = Q("0.25 in")

sketch23 = doc.addObject("Sketcher::SketchObject", "Sketch022")
body.addObject(sketch23)
sketch23.AttachmentSupport = (doc.XY_Plane, [""])
sketch23.MapMode = "FlatFace"
sketch23.AttachmentOffset = App.Placement(App.Vector(0, 0, 0.85 * 25.4), App.Rotation())
add_polygon(sketch23, [(32, 32), (32, 38), (38, 38), (38, 32)])
sketch23.addConstraint(Sketcher.Constraint("Vertical", 0))
sketch23.addConstraint(Sketcher.Constraint("Horizontal", 1))
sketch23.addConstraint(Sketcher.Constraint("Vertical", 2))
sketch23.addConstraint(Sketcher.Constraint("Horizontal", 3))
sketch23.addConstraint(Sketcher.Constraint("Equal", 3, 0))
sketch23.addConstraint(Sketcher.Constraint("DistanceX", 1, 1, 1, 2, Q("0.24 in")))
sketch23.addConstraint(Sketcher.Constraint("DistanceY", -1, 1, 0, 2, Q("1.5 in")))
sketch23.addConstraint(Sketcher.Constraint("DistanceX", -1, 1, 1, 2, Q("1.5 in")))
pad5 = doc.addObject("PartDesign::Pad", "Pad004")
body.addObject(pad5)
pad5.Profile = sketch23
pad5.Length = Q("0.2 in")
pad5.Reversed = True

sketch24 = doc.addObject("Sketcher::SketchObject", "Sketch023")
body.addObject(sketch24)
sketch24.AttachmentSupport = (doc.YZ_Plane, [""])
sketch24.MapMode = "FlatFace"
sketch24.AttachmentOffset = App.Placement(App.Vector(0, 0, 0.85 * 25.4), App.Rotation())
add_polygon(sketch24, [(32, 32), (32, 38), (38, 38), (38, 32)])
sketch24.addConstraint(Sketcher.Constraint("Vertical", 0))
sketch24.addConstraint(Sketcher.Constraint("Horizontal", 1))
sketch24.addConstraint(Sketcher.Constraint("Vertical", 2))
sketch24.addConstraint(Sketcher.Constraint("Horizontal", 3))
sketch24.addConstraint(Sketcher.Constraint("Equal", 3, 0))
sketch24.addConstraint(Sketcher.Constraint("DistanceX", 1, 1, 1, 2, Q("0.24 in")))
sketch24.addConstraint(Sketcher.Constraint("DistanceY", -1, 1, 0, 2, Q("1.5 in")))
sketch24.addConstraint(Sketcher.Constraint("DistanceX", -1, 1, 1, 2, Q("1.5 in")))
pad6 = doc.addObject("PartDesign::Pad", "Pad005")
body.addObject(pad6)
pad6.Profile = sketch24
pad6.Length = Q("0.2 in")
pad6.Reversed = True

sketch25 = doc.addObject("Sketcher::SketchObject", "Sketch024")
body.addObject(sketch25)
sketch25.AttachmentSupport = (doc.YZ_Plane, [""])
sketch25.MapMode = "FlatFace"
add_polygon(sketch25, [(0, 19), (76, 19), (76, 0), (0, 0)])
sketch25.addConstraint(Sketcher.Constraint("Horizontal", 0))
sketch25.addConstraint(Sketcher.Constraint("Vertical", 1))
sketch25.addConstraint(Sketcher.Constraint("Horizontal", 2))
sketch25.addConstraint(Sketcher.Constraint("Vertical", 3))
sketch25.addConstraint(Sketcher.Constraint("Coincident", 2, 2, -1, 1))
sketch25.addConstraint(Sketcher.Constraint("DistanceX", 0, 1, 0, 2, Q("3 in")))
sketch25.addConstraint(Sketcher.Constraint("DistanceY", 1, 2, 1, 1, Q("0.76 in")))
pad7 = doc.addObject("PartDesign::Pad", "Pad006")
body.addObject(pad7)
pad7.Profile = sketch25
pad7.Length = Q("0.5 in")
pad7.Reversed = True

sketch26 = doc.addObject("Sketcher::SketchObject", "Sketch025")
body.addObject(sketch26)
sketch26.AttachmentSupport = (doc.YZ_Plane, [""])
sketch26.MapMode = "FlatFace"
sketch26.AttachmentOffset = App.Placement(App.Vector(0, 0, -0.5 * 25.4), App.Rotation())
add_polygon(sketch26, [(0, 38), (76, 38), (76, 19), (0, 19)])
sketch26.addConstraint(Sketcher.Constraint("Horizontal", 0))
sketch26.addConstraint(Sketcher.Constraint("Vertical", 1))
sketch26.addConstraint(Sketcher.Constraint("Horizontal", 2))
sketch26.addConstraint(Sketcher.Constraint("Vertical", 3))
sketch26.addConstraint(Sketcher.Constraint("PointOnObject", 2, 2, -2))
sketch26.addConstraint(Sketcher.Constraint("DistanceX", 0, 1, 0, 2, Q("3 in")))
sketch26.addConstraint(Sketcher.Constraint("DistanceY", 1, 2, 1, 1, Q("0.74 in")))
sketch26.addConstraint(Sketcher.Constraint("DistanceY", -1, 1, 0, 2, Q("1.5 in")))
pad8 = doc.addObject("PartDesign::Pad", "Pad007")
body.addObject(pad8)
pad8.Profile = sketch26
pad8.Length = Q("0.25 in")

doc.recompute()
